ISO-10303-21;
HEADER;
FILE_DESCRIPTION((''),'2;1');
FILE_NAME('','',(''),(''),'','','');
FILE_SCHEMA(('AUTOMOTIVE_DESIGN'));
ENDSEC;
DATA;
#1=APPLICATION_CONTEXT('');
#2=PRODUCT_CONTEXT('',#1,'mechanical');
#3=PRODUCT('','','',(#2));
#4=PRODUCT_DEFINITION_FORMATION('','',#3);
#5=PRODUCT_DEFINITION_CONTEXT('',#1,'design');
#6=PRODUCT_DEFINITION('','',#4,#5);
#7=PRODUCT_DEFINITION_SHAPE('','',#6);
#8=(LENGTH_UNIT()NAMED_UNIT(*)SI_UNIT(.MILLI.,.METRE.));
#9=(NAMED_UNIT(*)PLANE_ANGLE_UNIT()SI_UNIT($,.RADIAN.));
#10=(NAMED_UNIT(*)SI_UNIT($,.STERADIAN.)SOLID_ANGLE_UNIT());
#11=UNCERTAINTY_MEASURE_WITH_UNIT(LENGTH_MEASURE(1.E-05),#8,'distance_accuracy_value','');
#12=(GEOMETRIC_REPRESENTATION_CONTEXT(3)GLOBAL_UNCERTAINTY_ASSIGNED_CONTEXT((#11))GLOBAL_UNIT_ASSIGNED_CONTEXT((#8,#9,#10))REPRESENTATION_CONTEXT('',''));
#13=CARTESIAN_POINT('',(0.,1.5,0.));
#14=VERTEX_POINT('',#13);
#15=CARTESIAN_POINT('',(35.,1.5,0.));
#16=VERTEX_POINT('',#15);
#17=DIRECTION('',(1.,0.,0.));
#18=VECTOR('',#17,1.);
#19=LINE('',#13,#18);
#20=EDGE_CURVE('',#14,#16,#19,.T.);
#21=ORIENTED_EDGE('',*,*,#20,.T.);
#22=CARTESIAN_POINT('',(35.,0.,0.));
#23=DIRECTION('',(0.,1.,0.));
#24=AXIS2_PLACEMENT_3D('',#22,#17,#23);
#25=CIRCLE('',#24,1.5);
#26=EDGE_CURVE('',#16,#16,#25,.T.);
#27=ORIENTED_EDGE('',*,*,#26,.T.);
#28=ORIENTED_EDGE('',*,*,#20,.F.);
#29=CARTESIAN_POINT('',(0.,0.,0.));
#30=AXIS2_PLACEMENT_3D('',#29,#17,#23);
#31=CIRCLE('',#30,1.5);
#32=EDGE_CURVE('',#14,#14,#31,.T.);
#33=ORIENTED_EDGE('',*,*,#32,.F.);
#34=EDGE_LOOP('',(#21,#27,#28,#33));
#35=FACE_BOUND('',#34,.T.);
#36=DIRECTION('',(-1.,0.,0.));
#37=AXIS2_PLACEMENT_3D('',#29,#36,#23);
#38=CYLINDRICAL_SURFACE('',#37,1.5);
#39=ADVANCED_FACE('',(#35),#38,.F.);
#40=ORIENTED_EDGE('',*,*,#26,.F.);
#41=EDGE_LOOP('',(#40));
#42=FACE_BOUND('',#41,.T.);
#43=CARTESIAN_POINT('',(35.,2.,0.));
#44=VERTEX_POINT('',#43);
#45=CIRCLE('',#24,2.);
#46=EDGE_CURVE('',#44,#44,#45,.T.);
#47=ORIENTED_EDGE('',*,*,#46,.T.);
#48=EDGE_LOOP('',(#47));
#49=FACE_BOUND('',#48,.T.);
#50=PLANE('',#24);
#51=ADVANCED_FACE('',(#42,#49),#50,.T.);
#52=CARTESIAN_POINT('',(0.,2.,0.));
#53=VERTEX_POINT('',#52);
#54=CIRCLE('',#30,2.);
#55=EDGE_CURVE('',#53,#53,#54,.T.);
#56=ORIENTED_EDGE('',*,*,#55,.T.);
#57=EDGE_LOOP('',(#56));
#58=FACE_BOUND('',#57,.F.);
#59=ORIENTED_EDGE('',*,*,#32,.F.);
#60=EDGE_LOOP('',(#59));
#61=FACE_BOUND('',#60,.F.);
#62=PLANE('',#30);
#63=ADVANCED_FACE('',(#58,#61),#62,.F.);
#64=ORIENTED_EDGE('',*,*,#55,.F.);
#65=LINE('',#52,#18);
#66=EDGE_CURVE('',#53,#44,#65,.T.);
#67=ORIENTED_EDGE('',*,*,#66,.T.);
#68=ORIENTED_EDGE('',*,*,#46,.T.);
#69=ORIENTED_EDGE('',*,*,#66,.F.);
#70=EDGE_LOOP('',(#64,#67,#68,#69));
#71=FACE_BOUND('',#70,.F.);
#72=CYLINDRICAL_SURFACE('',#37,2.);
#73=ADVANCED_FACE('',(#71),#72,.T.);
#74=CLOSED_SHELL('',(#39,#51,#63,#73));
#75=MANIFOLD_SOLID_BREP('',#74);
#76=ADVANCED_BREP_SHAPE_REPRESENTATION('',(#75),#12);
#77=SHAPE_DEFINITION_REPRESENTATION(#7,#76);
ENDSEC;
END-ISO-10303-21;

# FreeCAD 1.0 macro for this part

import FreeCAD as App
import Part
import Sketcher
from FreeCAD import Vector
Q = App.Units.Quantity

doc = App.newDocument("Part")
body = doc.addObject("PartDesign::Body", "Body")

# Sketch on YZ plane
sketch1 = body.newObject("Sketcher::SketchObject", "Sketch")
sketch1.AttachmentSupport = (doc.getObject("YZ_Plane"), [""])
sketch1.MapMode = "FlatFace"
sketch1.addGeometry([
    Part.Circle(Vector(0, 0, 0), Vector(0, 0, 1), 2),
    Part.Circle(Vector(0, 0, 0), Vector(0, 0, 1), 1.5),
], False)
sketch1.addConstraint([
    Sketcher.Constraint("Coincident", 0, 3, -1, 1),
    Sketcher.Constraint("Coincident", 1, 3, -1, 1),
    Sketcher.Constraint("Diameter", 0, Q("4 mm")),
    Sketcher.Constraint("Diameter", 1, Q("3 mm")),
])
pad1 = body.newObject("PartDesign::Pad", "Pad")
pad1.Profile = sketch1
pad1.Length = 35

doc.recompute()
